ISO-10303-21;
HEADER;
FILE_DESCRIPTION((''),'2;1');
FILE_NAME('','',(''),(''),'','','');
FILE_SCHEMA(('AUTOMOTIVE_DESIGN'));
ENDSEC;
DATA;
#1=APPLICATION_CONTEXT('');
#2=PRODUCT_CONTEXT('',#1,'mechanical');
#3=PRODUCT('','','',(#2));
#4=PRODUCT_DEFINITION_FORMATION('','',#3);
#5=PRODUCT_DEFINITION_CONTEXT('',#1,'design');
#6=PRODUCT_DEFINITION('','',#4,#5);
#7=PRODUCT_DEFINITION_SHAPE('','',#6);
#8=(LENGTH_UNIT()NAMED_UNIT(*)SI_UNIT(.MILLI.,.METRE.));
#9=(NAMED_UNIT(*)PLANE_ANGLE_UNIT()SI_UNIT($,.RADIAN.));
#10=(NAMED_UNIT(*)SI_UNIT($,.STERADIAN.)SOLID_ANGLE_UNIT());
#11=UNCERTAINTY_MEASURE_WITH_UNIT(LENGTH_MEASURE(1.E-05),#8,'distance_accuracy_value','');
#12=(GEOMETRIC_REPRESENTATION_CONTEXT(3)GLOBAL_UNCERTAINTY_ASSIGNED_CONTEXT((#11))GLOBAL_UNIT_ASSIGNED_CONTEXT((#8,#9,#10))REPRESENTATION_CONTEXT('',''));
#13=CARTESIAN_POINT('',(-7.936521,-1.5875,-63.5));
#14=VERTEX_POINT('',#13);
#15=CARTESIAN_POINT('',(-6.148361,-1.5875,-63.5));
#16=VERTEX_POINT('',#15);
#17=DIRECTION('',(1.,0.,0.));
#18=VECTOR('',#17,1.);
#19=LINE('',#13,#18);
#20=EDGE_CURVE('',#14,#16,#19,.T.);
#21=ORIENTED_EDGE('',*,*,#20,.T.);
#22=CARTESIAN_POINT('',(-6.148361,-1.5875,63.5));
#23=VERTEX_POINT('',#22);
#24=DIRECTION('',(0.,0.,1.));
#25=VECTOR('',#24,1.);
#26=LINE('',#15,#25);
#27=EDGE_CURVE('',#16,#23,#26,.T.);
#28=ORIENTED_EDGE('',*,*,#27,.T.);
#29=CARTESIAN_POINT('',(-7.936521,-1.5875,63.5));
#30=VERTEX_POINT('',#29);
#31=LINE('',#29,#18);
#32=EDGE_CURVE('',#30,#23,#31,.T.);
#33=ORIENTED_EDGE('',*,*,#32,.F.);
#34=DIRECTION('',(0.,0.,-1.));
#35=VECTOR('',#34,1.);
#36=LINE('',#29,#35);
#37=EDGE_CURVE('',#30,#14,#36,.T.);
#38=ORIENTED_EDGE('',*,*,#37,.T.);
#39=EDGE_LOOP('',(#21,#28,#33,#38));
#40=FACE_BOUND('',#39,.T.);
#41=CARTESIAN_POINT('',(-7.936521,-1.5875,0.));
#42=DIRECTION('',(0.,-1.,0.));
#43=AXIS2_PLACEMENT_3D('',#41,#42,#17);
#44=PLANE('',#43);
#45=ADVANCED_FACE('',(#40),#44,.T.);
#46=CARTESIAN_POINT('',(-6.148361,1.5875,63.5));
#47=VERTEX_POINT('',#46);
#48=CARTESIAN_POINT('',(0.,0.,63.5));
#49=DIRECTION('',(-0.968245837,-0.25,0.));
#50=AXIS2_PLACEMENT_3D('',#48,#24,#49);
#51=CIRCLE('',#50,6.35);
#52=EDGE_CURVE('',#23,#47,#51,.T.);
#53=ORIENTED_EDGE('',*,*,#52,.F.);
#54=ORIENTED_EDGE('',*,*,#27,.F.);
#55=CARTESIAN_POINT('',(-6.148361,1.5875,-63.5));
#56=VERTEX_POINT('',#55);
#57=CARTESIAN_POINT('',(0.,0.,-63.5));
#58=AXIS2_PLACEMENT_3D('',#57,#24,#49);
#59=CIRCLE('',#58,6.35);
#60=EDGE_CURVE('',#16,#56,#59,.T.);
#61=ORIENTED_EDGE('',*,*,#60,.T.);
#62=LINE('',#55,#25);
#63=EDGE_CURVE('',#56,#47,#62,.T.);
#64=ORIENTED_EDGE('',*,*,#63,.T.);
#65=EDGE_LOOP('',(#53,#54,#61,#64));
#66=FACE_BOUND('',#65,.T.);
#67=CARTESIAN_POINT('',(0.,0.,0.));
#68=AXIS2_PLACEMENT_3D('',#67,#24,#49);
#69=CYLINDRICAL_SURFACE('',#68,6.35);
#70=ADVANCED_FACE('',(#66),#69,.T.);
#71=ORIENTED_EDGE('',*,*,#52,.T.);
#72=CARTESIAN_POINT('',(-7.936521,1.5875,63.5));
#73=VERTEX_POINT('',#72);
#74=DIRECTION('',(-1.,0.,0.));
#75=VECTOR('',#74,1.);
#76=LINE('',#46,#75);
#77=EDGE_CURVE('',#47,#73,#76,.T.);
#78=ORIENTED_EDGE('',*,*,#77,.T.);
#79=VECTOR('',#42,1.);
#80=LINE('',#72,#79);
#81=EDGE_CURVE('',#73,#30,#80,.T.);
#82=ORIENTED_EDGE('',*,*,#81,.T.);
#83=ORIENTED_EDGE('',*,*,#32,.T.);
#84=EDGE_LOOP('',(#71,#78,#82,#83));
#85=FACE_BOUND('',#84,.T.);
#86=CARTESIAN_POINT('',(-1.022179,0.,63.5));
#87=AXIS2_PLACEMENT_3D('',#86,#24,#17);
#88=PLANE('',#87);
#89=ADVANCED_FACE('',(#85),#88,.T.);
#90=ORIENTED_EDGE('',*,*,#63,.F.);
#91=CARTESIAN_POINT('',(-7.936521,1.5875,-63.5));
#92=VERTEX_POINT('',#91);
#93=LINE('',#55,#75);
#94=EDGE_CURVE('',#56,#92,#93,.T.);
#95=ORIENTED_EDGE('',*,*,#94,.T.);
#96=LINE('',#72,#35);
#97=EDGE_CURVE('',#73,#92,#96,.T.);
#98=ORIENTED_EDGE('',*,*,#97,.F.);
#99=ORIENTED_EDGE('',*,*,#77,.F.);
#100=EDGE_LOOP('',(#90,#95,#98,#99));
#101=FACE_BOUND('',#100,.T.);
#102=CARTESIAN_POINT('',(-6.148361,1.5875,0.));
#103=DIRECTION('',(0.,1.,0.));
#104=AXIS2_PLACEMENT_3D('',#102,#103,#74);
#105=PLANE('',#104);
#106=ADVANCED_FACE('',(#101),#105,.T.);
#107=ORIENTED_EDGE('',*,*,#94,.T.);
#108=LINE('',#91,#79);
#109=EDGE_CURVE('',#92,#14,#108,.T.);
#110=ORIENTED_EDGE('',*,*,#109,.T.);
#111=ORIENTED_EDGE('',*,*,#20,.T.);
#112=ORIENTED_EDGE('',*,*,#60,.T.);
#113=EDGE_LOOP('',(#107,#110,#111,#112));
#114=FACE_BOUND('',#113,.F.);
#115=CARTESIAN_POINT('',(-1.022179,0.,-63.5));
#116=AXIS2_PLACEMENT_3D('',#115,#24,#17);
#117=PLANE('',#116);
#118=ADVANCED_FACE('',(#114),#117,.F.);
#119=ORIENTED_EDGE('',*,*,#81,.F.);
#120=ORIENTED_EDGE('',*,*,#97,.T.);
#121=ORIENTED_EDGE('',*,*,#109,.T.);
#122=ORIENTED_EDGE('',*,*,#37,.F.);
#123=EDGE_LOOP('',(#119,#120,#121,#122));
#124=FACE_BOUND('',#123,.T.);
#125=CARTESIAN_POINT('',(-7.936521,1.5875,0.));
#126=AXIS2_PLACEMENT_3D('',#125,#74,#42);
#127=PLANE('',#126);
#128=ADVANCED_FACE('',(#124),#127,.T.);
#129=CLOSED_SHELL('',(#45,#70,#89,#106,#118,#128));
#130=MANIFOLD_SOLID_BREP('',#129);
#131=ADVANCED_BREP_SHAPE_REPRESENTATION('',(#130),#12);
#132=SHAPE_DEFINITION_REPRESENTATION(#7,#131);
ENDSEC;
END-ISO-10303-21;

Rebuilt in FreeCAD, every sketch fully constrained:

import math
import FreeCAD as App
import Part
import Sketcher

V = App.Vector
Q = App.Units.Quantity

doc = App.newDocument("Part")
body = doc.addObject("PartDesign::Body", "Body")

# Sketch on XY plane
sketch1 = body.newObject("Sketcher::SketchObject", "Sketch")
sketch1.AttachmentSupport = (doc.getObject("XY_Plane"), [""])
sketch1.MapMode = "FlatFace"
sketch1.addGeometry(Part.LineSegment(V(-7.9, -1.6, 0), V(-6.1, -1.6, 0)), False)
sketch1.addGeometry(Part.ArcOfCircle(Part.Circle(V(0, 0, 0), V(0, 0, 1), 6.3), math.radians(-166), math.radians(166)), False)
sketch1.addGeometry(Part.LineSegment(V(-6.1, 1.6, 0), V(-7.9, 1.6, 0)), False)
sketch1.addGeometry(Part.LineSegment(V(-7.9, 1.6, 0), V(-7.9, -1.6, 0)), False)
sketch1.addConstraint(Sketcher.Constraint("Coincident", 0, 2, 1, 1))
sketch1.addConstraint(Sketcher.Constraint("Coincident", 1, 2, 2, 1))
sketch1.addConstraint(Sketcher.Constraint("Coincident", 2, 2, 3, 1))
sketch1.addConstraint(Sketcher.Constraint("Coincident", 3, 2, 0, 1))
sketch1.addConstraint(Sketcher.Constraint("Horizontal", 0))
sketch1.addConstraint(Sketcher.Constraint("Horizontal", 2))
sketch1.addConstraint(Sketcher.Constraint("Vertical", 3))
sketch1.addConstraint(Sketcher.Constraint("Coincident", 1, 3, -1, 1))
sketch1.addConstraint(Sketcher.Constraint("Vertical", 0, 2, 1, 2))
sketch1.addConstraint(Sketcher.Constraint("Radius", 1, Q("0.25 in")))
sketch1.addConstraint(Sketcher.Constraint("DistanceY", 3, 2, 3, 1, Q("0.125 in")))
sketch1.addConstraint(Sketcher.Constraint("DistanceX", 0, 1, 0, 2, Q("0.0704 in")))
pad1 = body.newObject("PartDesign::Pad", "Pad")
pad1.Profile = sketch1
pad1.Length = Q("5 in")
pad1.Midplane = True

doc.recompute()
